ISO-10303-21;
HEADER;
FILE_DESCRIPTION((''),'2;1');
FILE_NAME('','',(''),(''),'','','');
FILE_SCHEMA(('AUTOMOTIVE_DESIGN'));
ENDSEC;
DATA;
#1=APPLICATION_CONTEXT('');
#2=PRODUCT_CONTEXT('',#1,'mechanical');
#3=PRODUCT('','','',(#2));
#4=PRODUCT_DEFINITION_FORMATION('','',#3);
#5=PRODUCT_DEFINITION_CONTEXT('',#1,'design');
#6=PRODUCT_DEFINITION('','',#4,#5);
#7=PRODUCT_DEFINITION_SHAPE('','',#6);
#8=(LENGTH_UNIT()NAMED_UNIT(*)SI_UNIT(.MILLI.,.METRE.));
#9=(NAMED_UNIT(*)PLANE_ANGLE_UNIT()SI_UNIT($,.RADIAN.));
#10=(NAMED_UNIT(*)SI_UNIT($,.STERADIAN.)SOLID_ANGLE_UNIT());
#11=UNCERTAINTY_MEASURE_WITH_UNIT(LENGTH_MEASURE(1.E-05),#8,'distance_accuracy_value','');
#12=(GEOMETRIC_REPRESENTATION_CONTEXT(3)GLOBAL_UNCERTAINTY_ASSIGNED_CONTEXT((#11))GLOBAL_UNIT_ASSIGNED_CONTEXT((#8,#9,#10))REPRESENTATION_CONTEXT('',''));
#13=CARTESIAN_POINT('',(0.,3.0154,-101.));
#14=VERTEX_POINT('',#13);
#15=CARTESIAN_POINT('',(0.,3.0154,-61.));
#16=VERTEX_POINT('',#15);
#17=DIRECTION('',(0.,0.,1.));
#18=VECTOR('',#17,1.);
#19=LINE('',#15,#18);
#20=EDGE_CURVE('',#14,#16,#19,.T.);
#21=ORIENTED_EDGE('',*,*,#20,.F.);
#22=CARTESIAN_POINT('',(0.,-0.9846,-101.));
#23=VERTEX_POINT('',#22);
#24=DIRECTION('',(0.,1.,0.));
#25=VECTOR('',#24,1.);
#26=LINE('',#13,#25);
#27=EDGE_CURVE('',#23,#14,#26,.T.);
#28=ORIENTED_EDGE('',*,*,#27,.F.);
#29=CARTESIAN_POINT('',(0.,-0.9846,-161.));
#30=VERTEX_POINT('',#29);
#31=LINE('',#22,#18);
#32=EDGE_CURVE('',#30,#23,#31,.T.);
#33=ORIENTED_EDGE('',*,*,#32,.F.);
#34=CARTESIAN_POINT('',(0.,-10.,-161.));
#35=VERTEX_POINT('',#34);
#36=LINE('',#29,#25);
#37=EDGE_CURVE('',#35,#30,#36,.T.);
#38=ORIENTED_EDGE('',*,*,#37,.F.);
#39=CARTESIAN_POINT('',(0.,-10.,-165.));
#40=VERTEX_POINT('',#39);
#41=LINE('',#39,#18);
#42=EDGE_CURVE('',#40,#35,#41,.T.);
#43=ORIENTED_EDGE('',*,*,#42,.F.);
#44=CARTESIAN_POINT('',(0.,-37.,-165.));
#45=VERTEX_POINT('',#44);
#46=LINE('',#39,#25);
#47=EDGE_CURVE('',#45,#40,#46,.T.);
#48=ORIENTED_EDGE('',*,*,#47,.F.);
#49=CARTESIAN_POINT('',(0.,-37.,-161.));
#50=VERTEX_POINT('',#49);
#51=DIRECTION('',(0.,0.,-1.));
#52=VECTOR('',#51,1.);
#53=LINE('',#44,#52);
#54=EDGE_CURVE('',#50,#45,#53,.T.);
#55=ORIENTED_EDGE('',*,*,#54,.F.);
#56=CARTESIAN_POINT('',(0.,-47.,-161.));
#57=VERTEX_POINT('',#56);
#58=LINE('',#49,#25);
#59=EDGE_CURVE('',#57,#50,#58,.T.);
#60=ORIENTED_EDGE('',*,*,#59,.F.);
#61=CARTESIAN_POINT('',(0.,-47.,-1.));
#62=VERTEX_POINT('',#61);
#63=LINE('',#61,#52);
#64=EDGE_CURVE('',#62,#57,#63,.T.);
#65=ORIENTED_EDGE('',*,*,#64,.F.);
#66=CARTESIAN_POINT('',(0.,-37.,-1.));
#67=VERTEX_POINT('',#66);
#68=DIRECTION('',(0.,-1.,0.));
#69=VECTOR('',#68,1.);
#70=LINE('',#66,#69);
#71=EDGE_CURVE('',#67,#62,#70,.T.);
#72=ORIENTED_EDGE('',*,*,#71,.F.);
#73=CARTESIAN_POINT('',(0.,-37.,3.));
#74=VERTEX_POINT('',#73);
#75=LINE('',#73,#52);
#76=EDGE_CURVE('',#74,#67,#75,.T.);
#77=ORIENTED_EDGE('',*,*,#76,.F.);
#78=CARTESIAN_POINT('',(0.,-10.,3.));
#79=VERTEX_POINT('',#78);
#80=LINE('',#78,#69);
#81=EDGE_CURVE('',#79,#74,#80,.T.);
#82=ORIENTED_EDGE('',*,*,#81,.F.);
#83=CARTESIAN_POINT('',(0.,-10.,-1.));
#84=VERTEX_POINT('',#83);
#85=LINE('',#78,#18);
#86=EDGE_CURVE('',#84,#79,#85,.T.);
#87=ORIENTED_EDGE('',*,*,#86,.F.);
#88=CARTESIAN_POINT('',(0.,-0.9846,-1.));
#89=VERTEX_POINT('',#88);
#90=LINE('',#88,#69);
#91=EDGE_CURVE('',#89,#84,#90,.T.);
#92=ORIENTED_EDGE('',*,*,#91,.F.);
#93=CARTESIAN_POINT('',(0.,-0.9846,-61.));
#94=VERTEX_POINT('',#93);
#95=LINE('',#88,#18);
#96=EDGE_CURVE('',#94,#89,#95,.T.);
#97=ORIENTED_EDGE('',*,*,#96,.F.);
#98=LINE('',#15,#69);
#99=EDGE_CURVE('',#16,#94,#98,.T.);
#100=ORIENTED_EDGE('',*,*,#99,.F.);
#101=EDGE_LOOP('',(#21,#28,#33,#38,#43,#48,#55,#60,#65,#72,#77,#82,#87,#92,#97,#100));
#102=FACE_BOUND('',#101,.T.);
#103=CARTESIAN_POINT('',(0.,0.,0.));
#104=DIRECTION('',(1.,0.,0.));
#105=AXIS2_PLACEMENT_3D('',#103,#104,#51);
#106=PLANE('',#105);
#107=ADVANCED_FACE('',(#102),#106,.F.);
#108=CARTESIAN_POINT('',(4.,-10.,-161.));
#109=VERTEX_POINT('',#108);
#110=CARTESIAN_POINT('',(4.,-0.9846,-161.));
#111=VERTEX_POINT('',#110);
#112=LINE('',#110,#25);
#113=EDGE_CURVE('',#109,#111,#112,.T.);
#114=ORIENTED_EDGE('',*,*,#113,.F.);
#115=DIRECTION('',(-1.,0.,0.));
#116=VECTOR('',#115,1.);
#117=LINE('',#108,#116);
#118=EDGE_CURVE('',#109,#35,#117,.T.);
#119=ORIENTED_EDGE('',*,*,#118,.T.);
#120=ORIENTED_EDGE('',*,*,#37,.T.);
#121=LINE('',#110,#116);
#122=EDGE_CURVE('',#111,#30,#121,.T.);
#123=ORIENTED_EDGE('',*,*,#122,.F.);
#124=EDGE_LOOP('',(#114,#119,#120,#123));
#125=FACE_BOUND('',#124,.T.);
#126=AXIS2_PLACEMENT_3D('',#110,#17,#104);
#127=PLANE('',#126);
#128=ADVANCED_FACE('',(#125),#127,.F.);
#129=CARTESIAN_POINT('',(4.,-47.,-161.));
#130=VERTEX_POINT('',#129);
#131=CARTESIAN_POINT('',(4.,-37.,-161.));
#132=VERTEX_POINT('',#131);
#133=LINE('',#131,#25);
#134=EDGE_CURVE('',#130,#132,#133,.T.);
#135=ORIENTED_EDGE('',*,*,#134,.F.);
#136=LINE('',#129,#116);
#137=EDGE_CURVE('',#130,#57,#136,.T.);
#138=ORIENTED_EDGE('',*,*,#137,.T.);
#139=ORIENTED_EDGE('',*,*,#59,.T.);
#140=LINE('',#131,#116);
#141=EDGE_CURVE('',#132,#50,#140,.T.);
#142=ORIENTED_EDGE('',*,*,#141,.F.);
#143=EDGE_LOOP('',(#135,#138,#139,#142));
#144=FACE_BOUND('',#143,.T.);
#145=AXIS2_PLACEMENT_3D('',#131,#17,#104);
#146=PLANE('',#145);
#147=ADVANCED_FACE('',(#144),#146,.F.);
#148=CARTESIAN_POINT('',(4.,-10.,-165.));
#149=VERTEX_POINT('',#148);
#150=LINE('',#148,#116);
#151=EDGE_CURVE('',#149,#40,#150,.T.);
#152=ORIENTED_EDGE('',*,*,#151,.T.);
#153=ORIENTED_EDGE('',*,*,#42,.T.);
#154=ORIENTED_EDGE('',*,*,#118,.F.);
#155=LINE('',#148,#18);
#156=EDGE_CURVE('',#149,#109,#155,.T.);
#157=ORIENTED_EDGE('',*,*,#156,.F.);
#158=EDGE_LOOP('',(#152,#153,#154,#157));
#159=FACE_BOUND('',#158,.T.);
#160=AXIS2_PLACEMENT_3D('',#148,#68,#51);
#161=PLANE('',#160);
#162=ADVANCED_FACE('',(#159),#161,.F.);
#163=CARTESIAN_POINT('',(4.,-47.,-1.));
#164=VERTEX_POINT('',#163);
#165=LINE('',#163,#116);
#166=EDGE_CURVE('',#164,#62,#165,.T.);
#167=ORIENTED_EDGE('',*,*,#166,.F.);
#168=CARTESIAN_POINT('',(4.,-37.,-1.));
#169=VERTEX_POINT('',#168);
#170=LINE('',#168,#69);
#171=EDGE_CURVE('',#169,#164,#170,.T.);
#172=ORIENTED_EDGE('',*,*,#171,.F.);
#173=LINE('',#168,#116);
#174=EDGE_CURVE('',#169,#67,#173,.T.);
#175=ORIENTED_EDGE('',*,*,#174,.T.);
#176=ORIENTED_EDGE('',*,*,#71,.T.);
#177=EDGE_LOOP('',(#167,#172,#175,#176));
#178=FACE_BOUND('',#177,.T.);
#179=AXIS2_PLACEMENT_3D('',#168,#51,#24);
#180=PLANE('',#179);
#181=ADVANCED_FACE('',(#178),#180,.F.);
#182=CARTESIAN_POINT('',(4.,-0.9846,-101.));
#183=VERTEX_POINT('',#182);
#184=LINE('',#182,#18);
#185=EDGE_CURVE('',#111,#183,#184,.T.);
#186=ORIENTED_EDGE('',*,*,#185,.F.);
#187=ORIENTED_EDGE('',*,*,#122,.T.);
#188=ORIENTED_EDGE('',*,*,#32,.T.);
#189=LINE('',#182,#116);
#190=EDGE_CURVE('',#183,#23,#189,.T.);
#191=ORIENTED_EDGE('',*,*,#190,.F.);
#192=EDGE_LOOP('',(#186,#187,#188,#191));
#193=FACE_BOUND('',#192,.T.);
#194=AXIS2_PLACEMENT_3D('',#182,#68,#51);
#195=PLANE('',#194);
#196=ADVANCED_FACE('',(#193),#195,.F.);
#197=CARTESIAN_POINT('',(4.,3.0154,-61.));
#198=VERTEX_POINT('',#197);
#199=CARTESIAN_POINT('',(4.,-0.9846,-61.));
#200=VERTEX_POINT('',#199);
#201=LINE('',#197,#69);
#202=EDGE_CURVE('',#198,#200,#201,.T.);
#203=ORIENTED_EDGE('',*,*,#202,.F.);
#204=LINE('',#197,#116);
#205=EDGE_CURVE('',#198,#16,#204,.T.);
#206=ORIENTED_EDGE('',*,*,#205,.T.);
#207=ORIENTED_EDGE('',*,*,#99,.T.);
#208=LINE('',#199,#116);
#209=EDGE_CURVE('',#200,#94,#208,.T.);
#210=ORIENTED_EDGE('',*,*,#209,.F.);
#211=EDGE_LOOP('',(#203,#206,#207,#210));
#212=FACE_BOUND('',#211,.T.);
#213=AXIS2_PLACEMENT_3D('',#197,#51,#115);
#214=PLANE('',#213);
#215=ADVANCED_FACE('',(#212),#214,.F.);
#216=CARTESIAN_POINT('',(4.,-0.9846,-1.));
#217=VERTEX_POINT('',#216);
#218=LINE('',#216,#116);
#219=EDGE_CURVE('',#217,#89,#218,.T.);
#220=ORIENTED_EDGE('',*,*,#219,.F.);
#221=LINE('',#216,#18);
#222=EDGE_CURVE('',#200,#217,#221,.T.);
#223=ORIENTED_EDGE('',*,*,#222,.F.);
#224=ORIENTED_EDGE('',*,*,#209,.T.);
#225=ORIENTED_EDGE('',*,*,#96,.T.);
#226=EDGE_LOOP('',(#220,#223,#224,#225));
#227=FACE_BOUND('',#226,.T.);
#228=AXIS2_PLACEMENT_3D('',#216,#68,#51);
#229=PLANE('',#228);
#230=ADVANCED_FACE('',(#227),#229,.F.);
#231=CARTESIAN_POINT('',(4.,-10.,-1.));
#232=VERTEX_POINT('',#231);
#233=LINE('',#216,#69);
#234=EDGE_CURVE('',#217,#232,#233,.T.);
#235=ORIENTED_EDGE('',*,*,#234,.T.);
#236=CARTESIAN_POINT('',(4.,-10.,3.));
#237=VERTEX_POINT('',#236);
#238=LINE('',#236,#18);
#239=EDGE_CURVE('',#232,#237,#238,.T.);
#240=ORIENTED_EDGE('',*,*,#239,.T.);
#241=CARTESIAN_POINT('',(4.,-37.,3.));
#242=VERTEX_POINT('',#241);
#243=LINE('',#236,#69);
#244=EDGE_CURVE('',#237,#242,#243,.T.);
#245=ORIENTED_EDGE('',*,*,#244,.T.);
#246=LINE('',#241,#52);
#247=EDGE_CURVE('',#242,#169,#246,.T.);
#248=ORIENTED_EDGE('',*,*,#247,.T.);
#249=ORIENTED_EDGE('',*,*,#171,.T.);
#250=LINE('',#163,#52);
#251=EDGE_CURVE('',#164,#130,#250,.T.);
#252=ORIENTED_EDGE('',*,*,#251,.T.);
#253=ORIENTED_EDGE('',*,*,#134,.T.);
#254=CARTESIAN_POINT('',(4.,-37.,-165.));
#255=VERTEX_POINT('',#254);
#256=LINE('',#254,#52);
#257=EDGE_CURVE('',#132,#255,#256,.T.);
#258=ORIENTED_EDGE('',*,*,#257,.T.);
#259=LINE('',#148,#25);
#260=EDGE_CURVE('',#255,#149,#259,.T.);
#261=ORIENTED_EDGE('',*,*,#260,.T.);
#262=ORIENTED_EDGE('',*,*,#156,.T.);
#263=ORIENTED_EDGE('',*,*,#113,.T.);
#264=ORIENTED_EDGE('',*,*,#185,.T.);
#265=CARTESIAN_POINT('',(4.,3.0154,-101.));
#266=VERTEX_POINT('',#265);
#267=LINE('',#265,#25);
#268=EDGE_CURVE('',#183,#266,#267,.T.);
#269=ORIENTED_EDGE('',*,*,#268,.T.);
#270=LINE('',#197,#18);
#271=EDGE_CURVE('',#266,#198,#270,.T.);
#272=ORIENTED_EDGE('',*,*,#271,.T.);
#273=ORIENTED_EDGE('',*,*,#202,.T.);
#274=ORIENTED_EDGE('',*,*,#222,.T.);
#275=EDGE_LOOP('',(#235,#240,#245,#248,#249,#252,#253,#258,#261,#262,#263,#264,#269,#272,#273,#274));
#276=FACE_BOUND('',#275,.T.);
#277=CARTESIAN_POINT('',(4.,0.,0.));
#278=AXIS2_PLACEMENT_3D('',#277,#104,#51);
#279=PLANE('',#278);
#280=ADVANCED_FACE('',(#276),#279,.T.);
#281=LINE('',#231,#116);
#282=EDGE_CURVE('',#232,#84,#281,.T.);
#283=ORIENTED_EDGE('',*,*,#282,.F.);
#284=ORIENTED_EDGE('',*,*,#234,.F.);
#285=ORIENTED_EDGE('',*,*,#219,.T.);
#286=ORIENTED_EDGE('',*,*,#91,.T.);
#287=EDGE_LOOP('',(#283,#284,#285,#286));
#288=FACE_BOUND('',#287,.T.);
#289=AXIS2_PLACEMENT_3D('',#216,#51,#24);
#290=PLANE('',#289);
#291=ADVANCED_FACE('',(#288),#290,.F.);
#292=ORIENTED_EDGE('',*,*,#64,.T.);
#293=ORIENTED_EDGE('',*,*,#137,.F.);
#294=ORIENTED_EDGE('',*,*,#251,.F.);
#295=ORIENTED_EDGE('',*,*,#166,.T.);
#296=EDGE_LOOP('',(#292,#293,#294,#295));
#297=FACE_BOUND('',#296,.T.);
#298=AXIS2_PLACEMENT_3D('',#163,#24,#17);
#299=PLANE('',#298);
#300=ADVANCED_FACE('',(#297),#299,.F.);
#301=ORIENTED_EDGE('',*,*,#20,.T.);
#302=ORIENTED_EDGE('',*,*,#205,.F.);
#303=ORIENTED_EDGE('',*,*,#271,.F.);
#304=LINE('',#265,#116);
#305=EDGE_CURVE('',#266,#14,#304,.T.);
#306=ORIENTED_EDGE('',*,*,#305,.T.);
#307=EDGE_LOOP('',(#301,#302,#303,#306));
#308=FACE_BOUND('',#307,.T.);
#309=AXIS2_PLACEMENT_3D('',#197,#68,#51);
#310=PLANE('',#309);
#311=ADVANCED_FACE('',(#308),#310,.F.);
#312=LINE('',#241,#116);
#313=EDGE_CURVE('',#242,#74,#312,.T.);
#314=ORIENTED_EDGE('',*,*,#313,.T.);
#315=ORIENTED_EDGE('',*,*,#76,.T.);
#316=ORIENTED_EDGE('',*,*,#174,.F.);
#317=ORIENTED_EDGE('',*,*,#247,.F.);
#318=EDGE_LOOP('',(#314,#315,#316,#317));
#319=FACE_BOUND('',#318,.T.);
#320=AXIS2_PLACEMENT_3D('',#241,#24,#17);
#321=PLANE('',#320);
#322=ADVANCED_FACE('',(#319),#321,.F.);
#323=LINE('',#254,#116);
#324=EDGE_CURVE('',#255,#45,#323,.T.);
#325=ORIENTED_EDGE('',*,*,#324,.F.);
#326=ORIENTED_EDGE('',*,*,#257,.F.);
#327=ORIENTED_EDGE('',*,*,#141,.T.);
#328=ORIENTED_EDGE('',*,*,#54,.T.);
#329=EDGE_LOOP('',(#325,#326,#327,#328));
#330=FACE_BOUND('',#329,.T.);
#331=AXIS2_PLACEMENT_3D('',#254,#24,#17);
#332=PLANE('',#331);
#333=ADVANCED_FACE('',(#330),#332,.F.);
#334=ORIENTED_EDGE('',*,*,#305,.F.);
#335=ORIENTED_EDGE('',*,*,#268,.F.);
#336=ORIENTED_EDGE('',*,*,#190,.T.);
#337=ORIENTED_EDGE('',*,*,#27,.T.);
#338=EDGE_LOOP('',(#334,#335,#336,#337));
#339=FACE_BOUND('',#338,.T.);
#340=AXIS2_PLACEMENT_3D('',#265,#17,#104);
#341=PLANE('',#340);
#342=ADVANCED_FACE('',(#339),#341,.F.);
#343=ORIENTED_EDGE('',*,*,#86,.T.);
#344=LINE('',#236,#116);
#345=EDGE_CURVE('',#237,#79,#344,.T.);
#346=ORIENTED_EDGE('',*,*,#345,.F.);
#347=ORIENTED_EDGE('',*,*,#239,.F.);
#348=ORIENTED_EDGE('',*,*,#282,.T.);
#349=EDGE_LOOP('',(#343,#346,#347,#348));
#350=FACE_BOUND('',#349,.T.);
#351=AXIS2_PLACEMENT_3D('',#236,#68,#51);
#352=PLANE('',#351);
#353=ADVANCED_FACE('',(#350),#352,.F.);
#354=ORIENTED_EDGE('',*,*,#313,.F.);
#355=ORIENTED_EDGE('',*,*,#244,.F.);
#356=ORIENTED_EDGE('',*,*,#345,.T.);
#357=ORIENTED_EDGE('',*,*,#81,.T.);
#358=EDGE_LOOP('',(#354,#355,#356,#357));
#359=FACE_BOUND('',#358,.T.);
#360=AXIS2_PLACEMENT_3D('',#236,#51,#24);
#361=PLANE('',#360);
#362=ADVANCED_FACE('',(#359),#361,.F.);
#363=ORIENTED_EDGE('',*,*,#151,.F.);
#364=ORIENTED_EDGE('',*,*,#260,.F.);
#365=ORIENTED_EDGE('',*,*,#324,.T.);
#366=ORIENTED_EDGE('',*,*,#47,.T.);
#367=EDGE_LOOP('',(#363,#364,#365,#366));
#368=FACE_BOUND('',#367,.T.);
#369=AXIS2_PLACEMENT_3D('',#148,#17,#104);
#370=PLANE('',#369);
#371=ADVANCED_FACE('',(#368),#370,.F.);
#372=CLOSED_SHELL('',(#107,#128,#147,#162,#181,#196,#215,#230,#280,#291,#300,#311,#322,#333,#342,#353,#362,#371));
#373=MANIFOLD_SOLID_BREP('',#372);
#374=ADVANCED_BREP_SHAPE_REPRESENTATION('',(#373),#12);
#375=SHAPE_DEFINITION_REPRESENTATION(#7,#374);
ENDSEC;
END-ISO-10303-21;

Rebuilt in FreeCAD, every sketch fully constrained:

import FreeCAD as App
import Part
import Sketcher

V = App.Vector
Q = App.Units.Quantity

doc = App.newDocument("Part")
body = doc.addObject("PartDesign::Body", "Body")

# Sketch on YZ plane
sketch1 = body.newObject("Sketcher::SketchObject", "Sketch")
sketch1.AttachmentSupport = (doc.getObject("YZ_Plane"), [""])
sketch1.MapMode = "FlatFace"
sketch1.addGeometry([
    Part.LineSegment(V(3, -101, 0), V(3, -61, 0)),  # 0
    Part.LineSegment(V(3, -61, 0), V(-1, -61, 0)),  # 1
    Part.LineSegment(V(-1, -61, 0), V(-1, -1, 0)),  # 2
    Part.LineSegment(V(-1, -1, 0), V(-10, -1, 0)),  # 3
    Part.LineSegment(V(-10, -1, 0), V(-10, 3, 0)),  # 4
    Part.LineSegment(V(-10, 3, 0), V(-37, 3, 0)),  # 5
    Part.LineSegment(V(-37, 3, 0), V(-37, -1, 0)),  # 6
    Part.LineSegment(V(-37, -1, 0), V(-47, -1, 0)),  # 7
    Part.LineSegment(V(-47, -1, 0), V(-47, -161, 0)),  # 8
    Part.LineSegment(V(-47, -161, 0), V(-37, -161, 0)),  # 9
    Part.LineSegment(V(-37, -161, 0), V(-37, -165, 0)),  # 10
    Part.LineSegment(V(-37, -165, 0), V(-10, -165, 0)),  # 11
    Part.LineSegment(V(-10, -165, 0), V(-10, -161, 0)),  # 12
    Part.LineSegment(V(-10, -161, 0), V(-1, -161, 0)),  # 13
    Part.LineSegment(V(-1, -161, 0), V(-1, -101, 0)),  # 14
    Part.LineSegment(V(-1, -101, 0), V(3, -101, 0)),  # 15
], False)
sketch1.addConstraint([
    Sketcher.Constraint("Coincident", 0, 2, 1, 1),
    Sketcher.Constraint("Coincident", 1, 2, 2, 1),
    Sketcher.Constraint("Coincident", 2, 2, 3, 1),
    Sketcher.Constraint("Coincident", 3, 2, 4, 1),
    Sketcher.Constraint("Coincident", 4, 2, 5, 1),
    Sketcher.Constraint("Coincident", 5, 2, 6, 1),
    Sketcher.Constraint("Coincident", 6, 2, 7, 1),
    Sketcher.Constraint("Coincident", 7, 2, 8, 1),
    Sketcher.Constraint("Coincident", 8, 2, 9, 1),
    Sketcher.Constraint("Coincident", 9, 2, 10, 1),
    Sketcher.Constraint("Coincident", 10, 2, 11, 1),
    Sketcher.Constraint("Coincident", 11, 2, 12, 1),
    Sketcher.Constraint("Coincident", 12, 2, 13, 1),
    Sketcher.Constraint("Coincident", 13, 2, 14, 1),
    Sketcher.Constraint("Coincident", 14, 2, 15, 1),
    Sketcher.Constraint("Coincident", 15, 2, 0, 1),
    Sketcher.Constraint("Vertical", 0),
    Sketcher.Constraint("Horizontal", 1),
    Sketcher.Constraint("Vertical", 2),
    Sketcher.Constraint("Horizontal", 3),
    Sketcher.Constraint("Vertical", 4),
    Sketcher.Constraint("Horizontal", 5),
    Sketcher.Constraint("Vertical", 6),
    Sketcher.Constraint("Horizontal", 7),
    Sketcher.Constraint("Vertical", 8),
    Sketcher.Constraint("Horizontal", 9),
    Sketcher.Constraint("Vertical", 10),
    Sketcher.Constraint("Horizontal", 11),
    Sketcher.Constraint("Vertical", 12),
    Sketcher.Constraint("Horizontal", 13),
    Sketcher.Constraint("Vertical", 14),
    Sketcher.Constraint("Horizontal", 15),
    Sketcher.Constraint("Horizontal", 3, 2, 6, 2),
    Sketcher.Constraint("Horizontal", 9, 2, 12, 2),
    Sketcher.Constraint("Vertical", 6, 2, 9, 2),
    Sketcher.Constraint("Vertical", 4, 2, 11, 2),
    Sketcher.Constraint("Vertical", 2, 2, 13, 2),
    Sketcher.Constraint("Equal", 15, 4),
    Sketcher.Constraint("Equal", 6, 10),
    Sketcher.Constraint("Equal", 2, 14),
    Sketcher.Constraint("DistanceX", 1, 2, 1, 1, Q("4 mm")),
    Sketcher.Constraint("DistanceX", 5, 2, 5, 1, Q("27 mm")),
    Sketcher.Constraint("DistanceX", 7, 2, 7, 1, Q("10 mm")),
    Sketcher.Constraint("DistanceY", 0, 1, 0, 2, Q("40 mm")),
    Sketcher.Constraint("DistanceY", 2, 1, 2, 2, Q("60 mm")),
    Sketcher.Constraint("DistanceY", 0, 2, -1, 1, Q("61 mm")),
    Sketcher.Constraint("DistanceX", 3, 2, -1, 1, Q("10 mm")),
    Sketcher.Constraint("DistanceX", 3, 2, 3, 1, Q("9.0154 mm")),
])
pad1 = body.newObject("PartDesign::Pad", "Pad")
pad1.Profile = sketch1
pad1.Length = 4

doc.recompute()
